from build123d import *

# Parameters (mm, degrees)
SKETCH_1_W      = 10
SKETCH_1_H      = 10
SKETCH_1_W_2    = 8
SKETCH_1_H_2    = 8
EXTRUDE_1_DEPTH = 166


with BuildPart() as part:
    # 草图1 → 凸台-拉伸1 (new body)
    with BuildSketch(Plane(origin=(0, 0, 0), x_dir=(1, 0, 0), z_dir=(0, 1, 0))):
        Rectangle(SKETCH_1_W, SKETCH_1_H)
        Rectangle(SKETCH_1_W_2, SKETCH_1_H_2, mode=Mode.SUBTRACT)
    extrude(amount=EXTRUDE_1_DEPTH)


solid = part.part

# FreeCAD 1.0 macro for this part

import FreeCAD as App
import Part
import Sketcher

V = App.Vector
Q = App.Units.Quantity


def add_polygon(sketch, points):
    """Adds a closed chain of lines whose ends are joined by coincident constraints."""
    first, n = sketch.GeometryCount, len(points)
    for a, b in zip(points, points[1:] + points[:1]):
        sketch.addGeometry(Part.LineSegment(App.Vector(*a, 0), App.Vector(*b, 0)), False)
    for i in range(n):
        sketch.addConstraint(Sketcher.Constraint("Coincident", first + i, 2, first + (i + 1) % n, 1))

doc = App.newDocument("Part")
body = doc.addObject("PartDesign::Body", "Body")

# Sketch on XZ plane
sketch1 = body.newObject("Sketcher::SketchObject", "Sketch")
sketch1.AttachmentSupport = (doc.getObject("XZ_Plane"), [""])
sketch1.MapMode = "FlatFace"
add_polygon(sketch1, [(-5, -5), (-5, 5), (5, 5), (5, -5)])  # lines 0-3
add_polygon(sketch1, [(4, 4), (-4, 4), (-4, -4), (4, -4)])  # lines 4-7
sketch1.addConstraint([
    Sketcher.Constraint("Vertical", 0),
    Sketcher.Constraint("Horizontal", 1),
    Sketcher.Constraint("Vertical", 2),
    Sketcher.Constraint("Horizontal", 3),
    Sketcher.Constraint("Horizontal", 4),
    Sketcher.Constraint("Vertical", 5),
    Sketcher.Constraint("Horizontal", 6),
    Sketcher.Constraint("Vertical", 7),
    Sketcher.Constraint("Symmetric", 0, 2, 2, 2, -1, 1),
    Sketcher.Constraint("Symmetric", 4, 2, 6, 2, -1, 1),
    Sketcher.Constraint("Equal", 3, 0),
    Sketcher.Constraint("Equal", 6, 5),
    Sketcher.Constraint("DistanceX", 1, 1, 1, 2, Q("10 mm")),
    Sketcher.Constraint("DistanceX", 4, 2, 4, 1, Q("8 mm")),
])
pad1 = body.newObject("PartDesign::Pad", "Pad")
pad1.Profile = sketch1
pad1.Length = 166
pad1.Reversed = True

doc.recompute()
